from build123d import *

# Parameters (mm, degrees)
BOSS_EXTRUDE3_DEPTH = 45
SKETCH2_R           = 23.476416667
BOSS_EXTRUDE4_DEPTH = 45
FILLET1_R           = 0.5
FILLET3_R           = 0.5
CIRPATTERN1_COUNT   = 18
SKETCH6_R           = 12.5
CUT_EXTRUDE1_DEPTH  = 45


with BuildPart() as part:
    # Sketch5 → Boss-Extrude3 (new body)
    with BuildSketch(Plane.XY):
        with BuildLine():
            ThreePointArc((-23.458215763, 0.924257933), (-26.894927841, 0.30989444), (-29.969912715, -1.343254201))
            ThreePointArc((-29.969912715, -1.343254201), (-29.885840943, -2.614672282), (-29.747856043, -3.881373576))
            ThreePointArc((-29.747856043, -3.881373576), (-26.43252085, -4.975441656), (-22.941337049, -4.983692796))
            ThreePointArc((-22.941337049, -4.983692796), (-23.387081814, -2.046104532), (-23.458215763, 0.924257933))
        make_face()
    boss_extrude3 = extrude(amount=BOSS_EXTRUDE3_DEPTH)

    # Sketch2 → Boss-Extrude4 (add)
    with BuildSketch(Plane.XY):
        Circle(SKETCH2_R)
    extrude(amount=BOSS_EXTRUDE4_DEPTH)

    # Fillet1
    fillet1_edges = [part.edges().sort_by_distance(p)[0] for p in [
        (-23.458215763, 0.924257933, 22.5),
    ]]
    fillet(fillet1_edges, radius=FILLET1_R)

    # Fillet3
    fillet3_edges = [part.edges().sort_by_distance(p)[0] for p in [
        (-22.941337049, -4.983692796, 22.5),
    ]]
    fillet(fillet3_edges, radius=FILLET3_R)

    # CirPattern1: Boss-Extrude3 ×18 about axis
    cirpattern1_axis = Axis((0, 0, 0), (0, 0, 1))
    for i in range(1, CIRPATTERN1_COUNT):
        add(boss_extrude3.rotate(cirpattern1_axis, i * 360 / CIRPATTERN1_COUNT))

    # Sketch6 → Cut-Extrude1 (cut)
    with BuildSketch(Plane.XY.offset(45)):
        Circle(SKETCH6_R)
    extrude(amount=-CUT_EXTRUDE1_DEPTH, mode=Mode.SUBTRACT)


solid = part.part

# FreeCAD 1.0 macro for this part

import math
import FreeCAD as App
import Part
import Sketcher


def edges_at(feature, points):
    """Names of the edges that pass closest to the given points."""
    edges = feature.Shape.Edges
    near = lambda p: min(range(len(edges)), key=lambda i: edges[i].distToShape(Part.Vertex(*p))[0])
    return sorted({f"Edge{near(p) + 1}" for p in points})

doc = App.newDocument("Part")
body = doc.addObject("PartDesign::Body", "Body")

sketch1 = body.newObject("Sketcher::SketchObject", "Sketch")
sketch1.AttachmentSupport = (doc.getObject("XY_Plane"), [""])
sketch1.MapMode = "FlatFace"
sketch1.addGeometry([
    Part.ArcOfCircle(Part.Circle(App.Vector(-23.3, -10.2, 0), App.Vector(0, 0, 1), 11.1), math.radians(91), math.radians(127)),
    Part.ArcOfCircle(Part.Circle(App.Vector(0, 0, 0), App.Vector(0, 0, 1), 30), math.radians(-177.43), math.radians(-172.57)),
    Part.ArcOfCircle(Part.Circle(App.Vector(-24.7, 6, 0), App.Vector(0, 0, 1), 11.1), math.radians(-117), math.radians(-81)),
    Part.ArcOfCircle(Part.Circle(App.Vector(0, 0, 0), App.Vector(0, 0, 1), 23.5), math.radians(177.74), math.radians(192.26)),
], False)
sketch1.addConstraint([
    Sketcher.Constraint("Coincident", 0, 2, 1, 1),
    Sketcher.Constraint("Coincident", 1, 2, 2, 1),
    Sketcher.Constraint("Coincident", 2, 2, 3, 2),
    Sketcher.Constraint("Coincident", 3, 1, 0, 1),
    Sketcher.Constraint("Coincident", 1, 3, -1, 1),
    Sketcher.Constraint("Coincident", 3, 3, -1, 1),
    Sketcher.Constraint("Equal", 0, 2),
    Sketcher.Constraint("Radius", 1, 30.0),
    Sketcher.Constraint("Radius", 0, 11.080754),
    Sketcher.Constraint("Radius", 3, 23.476417),
    Sketcher.Constraint("DistanceX", 0, 3, -1, 1, 23.250982),
    Sketcher.Constraint("DistanceY", 0, 3, -1, 1, 10.154558),
    Sketcher.Constraint("DistanceY", 0, 2, 2, 3, 7.306051),
    Sketcher.Constraint("DistanceY", 1, 2, 0, 2, 2.538119),
])
pad1 = body.newObject("PartDesign::Pad", "Pad")
pad1.Profile = sketch1
pad1.Length = 45

sketch2 = body.newObject("Sketcher::SketchObject", "Sketch001")
sketch2.AttachmentSupport = (doc.getObject("XY_Plane"), [""])
sketch2.MapMode = "FlatFace"
sketch2.addGeometry(Part.Circle(App.Vector(0, 0, 0), App.Vector(0, 0, 1), 23), False)
sketch2.addConstraint([
    Sketcher.Constraint("Coincident", 0, 3, -1, 1),
    Sketcher.Constraint("Diameter", 0, 46.952833),
])
pad2 = body.newObject("PartDesign::Pad", "Pad001")
pad2.Profile = sketch2
pad2.Length = 45
doc.recompute()

fillet = body.newObject("PartDesign::Fillet", "Fillet")
fillet.Base = (pad2, edges_at(pad2, [(-23.458, 0.924, 22.5)]))
fillet.Radius = 0.5
doc.recompute()

fillet2 = body.newObject("PartDesign::Fillet", "Fillet001")
fillet2.Base = (fillet, edges_at(fillet, [(-22.941, -4.984, 22.5)]))
fillet2.Radius = 0.5
doc.recompute()

polarpattern = body.newObject("PartDesign::PolarPattern", "PolarPattern")
polarpattern.Originals = [pad1]
polarpattern.Axis = (doc.getObject("Z_Axis"), [""])
polarpattern.Angle = 360
polarpattern.Occurrences = 18
body.Tip = polarpattern

sketch3 = body.newObject("Sketcher::SketchObject", "Sketch002")
sketch3.AttachmentSupport = (doc.getObject("XY_Plane"), [""])
sketch3.MapMode = "FlatFace"
sketch3.AttachmentOffset = App.Placement(App.Vector(0, 0, 45), App.Rotation())
sketch3.addGeometry(Part.Circle(App.Vector(0, 0, 0), App.Vector(0, 0, 1), 12), False)
sketch3.addConstraint([
    Sketcher.Constraint("Coincident", 0, 3, -1, 1),
    Sketcher.Constraint("Diameter", 0, 25.0),
])
pocket1 = body.newObject("PartDesign::Pocket", "Pocket")
pocket1.Profile = sketch3
pocket1.Length = 45

doc.recompute()
